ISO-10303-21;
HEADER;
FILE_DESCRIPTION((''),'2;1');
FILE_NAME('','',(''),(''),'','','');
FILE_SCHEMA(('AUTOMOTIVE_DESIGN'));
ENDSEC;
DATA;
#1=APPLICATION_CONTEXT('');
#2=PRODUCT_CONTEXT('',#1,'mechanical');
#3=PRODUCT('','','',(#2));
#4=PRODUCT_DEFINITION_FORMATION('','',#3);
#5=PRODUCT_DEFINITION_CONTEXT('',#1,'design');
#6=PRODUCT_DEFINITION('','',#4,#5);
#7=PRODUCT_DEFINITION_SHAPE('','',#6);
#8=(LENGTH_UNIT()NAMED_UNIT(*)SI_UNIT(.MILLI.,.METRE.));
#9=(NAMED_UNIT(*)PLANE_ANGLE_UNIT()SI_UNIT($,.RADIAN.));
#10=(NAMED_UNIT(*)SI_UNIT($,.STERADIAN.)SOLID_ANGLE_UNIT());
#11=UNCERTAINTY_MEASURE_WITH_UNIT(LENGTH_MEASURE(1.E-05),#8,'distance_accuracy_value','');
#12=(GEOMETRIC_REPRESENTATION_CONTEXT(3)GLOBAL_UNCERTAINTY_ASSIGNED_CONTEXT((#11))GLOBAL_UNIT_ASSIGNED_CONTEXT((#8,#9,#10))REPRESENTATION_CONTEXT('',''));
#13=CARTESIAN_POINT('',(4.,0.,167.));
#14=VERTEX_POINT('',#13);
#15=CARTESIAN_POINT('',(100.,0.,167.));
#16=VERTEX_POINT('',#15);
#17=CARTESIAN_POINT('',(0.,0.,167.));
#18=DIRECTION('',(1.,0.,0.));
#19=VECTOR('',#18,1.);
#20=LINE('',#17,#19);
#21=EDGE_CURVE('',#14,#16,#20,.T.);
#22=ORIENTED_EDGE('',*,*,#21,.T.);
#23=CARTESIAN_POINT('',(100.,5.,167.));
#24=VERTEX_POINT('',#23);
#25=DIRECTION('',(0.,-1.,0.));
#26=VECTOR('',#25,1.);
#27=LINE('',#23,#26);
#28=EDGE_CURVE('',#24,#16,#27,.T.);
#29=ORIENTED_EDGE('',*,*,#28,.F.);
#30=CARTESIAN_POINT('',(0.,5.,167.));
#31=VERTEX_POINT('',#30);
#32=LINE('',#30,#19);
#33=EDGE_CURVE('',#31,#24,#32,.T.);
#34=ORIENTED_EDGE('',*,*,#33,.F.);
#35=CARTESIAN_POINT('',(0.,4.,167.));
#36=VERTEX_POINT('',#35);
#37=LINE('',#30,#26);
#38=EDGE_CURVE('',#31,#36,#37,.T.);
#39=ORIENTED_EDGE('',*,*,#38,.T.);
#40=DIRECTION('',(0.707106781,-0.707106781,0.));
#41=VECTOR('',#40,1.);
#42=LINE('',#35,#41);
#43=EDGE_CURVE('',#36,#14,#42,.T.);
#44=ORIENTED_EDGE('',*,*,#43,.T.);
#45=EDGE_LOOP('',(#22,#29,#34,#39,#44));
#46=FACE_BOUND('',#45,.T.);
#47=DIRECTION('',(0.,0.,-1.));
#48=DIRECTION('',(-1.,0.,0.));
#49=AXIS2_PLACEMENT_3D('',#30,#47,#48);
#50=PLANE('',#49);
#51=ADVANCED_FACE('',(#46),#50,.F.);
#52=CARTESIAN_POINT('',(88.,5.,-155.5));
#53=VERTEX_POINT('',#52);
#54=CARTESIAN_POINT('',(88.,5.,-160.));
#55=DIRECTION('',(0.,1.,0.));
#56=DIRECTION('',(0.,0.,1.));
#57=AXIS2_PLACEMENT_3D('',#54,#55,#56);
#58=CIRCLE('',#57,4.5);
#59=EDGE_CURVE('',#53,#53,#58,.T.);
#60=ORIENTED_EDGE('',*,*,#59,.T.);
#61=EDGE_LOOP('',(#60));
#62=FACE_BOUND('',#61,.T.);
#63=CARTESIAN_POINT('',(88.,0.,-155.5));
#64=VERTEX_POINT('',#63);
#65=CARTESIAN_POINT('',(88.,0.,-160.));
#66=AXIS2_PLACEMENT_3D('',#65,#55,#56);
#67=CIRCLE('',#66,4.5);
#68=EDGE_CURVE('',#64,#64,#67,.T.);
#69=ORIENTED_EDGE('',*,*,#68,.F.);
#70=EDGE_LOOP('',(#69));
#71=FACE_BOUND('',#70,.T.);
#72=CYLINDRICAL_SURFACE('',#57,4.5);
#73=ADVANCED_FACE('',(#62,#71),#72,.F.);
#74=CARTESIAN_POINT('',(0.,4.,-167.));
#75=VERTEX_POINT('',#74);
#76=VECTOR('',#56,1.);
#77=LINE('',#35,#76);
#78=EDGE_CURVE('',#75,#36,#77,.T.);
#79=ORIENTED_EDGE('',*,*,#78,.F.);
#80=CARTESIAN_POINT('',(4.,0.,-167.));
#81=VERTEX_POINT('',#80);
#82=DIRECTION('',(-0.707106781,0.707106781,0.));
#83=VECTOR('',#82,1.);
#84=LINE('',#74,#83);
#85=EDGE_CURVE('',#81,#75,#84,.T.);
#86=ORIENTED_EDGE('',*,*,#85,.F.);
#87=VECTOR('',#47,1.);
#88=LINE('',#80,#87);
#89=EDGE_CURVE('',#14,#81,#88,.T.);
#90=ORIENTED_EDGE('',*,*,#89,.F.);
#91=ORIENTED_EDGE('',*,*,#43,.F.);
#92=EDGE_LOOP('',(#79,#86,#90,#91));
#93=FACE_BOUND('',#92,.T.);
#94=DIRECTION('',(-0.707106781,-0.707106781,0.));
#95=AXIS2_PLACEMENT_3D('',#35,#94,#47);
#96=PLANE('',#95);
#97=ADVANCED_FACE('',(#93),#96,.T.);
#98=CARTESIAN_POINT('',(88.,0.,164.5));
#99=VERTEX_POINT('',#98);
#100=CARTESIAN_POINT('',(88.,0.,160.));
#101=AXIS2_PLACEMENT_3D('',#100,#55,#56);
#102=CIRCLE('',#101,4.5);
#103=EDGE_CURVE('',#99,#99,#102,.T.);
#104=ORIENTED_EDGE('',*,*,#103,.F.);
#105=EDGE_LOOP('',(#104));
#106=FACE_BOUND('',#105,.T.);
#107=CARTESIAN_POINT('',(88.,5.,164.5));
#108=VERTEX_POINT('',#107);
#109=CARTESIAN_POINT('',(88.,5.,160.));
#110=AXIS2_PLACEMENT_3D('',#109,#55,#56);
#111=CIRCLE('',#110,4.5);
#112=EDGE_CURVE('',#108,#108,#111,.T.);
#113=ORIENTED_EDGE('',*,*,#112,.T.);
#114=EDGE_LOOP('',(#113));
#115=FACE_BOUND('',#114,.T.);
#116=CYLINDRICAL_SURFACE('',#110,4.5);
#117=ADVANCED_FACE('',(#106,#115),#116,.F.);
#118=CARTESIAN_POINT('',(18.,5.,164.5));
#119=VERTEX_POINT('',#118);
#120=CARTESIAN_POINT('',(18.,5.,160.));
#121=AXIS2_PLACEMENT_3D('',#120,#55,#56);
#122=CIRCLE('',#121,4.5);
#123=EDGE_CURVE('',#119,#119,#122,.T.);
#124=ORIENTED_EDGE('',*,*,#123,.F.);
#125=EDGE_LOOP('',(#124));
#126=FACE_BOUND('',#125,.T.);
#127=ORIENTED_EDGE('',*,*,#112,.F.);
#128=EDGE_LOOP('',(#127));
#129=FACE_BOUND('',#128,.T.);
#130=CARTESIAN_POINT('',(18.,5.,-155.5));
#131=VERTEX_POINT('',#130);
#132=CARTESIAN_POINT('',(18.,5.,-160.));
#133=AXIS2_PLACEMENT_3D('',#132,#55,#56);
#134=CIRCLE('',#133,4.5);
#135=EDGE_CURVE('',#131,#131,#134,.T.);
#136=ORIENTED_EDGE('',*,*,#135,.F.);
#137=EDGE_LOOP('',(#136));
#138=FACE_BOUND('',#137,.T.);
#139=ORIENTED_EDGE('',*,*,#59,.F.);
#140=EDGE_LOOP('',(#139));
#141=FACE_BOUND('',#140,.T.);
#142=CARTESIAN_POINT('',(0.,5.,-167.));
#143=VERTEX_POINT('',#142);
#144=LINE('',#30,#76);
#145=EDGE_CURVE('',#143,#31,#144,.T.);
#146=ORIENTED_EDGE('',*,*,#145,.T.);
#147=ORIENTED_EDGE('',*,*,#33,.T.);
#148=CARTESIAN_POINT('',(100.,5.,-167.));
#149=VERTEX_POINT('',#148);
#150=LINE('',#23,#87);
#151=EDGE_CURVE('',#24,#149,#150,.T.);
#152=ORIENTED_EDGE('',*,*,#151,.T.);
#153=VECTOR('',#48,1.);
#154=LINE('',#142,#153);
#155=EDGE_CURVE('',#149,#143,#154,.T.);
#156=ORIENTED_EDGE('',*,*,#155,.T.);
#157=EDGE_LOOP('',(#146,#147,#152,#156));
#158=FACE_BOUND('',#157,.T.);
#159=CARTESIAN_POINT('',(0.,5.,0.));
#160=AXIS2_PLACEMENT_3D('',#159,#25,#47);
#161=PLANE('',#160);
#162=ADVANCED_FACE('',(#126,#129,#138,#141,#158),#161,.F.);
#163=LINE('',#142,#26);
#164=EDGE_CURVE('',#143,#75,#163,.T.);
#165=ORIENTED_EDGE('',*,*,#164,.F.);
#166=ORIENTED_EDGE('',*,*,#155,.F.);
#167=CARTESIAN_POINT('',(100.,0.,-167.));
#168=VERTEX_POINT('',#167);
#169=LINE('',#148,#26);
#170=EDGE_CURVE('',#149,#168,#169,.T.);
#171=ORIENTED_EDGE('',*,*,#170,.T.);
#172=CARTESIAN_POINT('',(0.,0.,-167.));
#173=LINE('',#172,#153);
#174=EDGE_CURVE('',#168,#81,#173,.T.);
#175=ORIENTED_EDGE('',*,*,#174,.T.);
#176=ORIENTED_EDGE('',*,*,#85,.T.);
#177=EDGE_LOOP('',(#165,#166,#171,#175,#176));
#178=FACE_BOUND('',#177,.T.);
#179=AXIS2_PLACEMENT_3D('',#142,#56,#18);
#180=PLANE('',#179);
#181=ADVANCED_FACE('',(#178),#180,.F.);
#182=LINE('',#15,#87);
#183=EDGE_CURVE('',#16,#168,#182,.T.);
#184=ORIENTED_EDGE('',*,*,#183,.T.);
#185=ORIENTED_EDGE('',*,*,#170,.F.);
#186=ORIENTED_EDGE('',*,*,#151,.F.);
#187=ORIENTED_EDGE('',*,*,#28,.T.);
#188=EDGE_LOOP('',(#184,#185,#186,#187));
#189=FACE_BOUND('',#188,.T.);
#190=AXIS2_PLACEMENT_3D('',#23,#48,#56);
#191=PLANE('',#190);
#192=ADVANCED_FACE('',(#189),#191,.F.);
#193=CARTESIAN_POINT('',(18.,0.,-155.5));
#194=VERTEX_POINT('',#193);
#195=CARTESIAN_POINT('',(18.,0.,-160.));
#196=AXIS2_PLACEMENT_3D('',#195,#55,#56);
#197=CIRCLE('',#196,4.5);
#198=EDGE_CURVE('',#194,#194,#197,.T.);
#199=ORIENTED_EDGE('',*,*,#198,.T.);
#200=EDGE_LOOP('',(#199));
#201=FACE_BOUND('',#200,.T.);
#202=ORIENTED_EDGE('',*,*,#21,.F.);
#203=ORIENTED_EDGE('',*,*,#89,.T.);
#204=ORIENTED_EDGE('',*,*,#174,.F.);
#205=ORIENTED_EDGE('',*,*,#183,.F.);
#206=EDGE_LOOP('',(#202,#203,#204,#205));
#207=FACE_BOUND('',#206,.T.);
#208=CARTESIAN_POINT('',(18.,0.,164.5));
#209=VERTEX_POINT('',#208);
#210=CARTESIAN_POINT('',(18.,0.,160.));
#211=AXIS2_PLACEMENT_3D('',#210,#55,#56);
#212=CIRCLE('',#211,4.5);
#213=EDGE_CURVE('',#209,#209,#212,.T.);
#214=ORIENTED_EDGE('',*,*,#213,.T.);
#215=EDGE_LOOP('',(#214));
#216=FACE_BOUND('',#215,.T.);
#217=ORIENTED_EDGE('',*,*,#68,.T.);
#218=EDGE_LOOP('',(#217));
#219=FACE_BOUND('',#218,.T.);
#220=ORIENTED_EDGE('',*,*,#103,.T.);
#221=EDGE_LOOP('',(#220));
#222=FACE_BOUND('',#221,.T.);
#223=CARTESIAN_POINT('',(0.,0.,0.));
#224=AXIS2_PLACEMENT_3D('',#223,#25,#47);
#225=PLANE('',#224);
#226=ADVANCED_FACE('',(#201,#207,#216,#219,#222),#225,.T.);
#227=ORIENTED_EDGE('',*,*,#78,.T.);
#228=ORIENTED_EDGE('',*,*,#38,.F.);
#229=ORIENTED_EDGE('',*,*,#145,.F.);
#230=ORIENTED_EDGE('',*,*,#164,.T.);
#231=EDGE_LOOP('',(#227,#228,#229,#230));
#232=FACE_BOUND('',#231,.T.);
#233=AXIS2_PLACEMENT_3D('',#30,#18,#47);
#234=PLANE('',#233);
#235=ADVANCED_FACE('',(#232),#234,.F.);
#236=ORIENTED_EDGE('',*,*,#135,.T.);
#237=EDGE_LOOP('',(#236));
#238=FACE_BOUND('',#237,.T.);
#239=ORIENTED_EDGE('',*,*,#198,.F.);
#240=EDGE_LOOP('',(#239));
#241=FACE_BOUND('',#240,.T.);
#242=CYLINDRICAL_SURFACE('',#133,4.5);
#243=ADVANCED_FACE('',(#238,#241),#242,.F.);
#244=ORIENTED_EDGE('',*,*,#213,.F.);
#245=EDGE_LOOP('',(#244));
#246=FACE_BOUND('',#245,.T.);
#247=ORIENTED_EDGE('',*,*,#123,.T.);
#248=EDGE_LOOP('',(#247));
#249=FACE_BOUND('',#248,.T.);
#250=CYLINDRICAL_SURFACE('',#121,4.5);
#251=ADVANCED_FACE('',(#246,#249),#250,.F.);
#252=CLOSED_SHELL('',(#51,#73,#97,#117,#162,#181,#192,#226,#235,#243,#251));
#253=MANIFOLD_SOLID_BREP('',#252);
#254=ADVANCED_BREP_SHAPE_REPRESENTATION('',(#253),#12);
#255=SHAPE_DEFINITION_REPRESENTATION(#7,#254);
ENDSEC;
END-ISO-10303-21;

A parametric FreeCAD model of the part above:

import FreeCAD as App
import Part
import Sketcher
from FreeCAD import Vector
Q = App.Units.Quantity


def edges_at(feature, points):
    """Names of the edges that pass closest to the given points."""
    edges = feature.Shape.Edges
    near = lambda p: min(range(len(edges)), key=lambda i: edges[i].distToShape(Part.Vertex(*p))[0])
    return sorted({f"Edge{near(p) + 1}" for p in points})

doc = App.newDocument("Part")
params = doc.addObject("Spreadsheet::Sheet", "Params")
for row, (alias, value) in enumerate([
    ("sketch1_width", "100 mm"),
    ("sketch1_height", "334 mm"),
    ("pad1_length", "5 mm"),
    ("chamfer_size", "4 mm"),
    ("sketch2_diameter", "9 mm"),
    ("hole_diameter", "9 mm"),
], start=1):
    params.set(f"A{row}", alias)
    params.set(f"B{row}", "=" + value)
    params.setAlias(f"B{row}", alias)

body = doc.addObject("PartDesign::Body", "Body")

# Sketch on XZ plane
sketch1 = body.newObject("Sketcher::SketchObject", "Sketch")
sketch1.AttachmentSupport = (doc.getObject("XZ_Plane"), [""])
sketch1.MapMode = "FlatFace"
sketch1.addGeometry([
    Part.LineSegment(Vector(0, -167, 0), Vector(0, 167, 0)),
    Part.LineSegment(Vector(0, 167, 0), Vector(100, 167, 0)),
    Part.LineSegment(Vector(100, 167, 0), Vector(100, -167, 0)),
    Part.LineSegment(Vector(100, -167, 0), Vector(0, -167, 0)),
], False)
sketch1.addConstraint([
    Sketcher.Constraint("Coincident", 0, 2, 1, 1),
    Sketcher.Constraint("Coincident", 1, 2, 2, 1),
    Sketcher.Constraint("Coincident", 2, 2, 3, 1),
    Sketcher.Constraint("Coincident", 3, 2, 0, 1),
    Sketcher.Constraint("Vertical", 0),
    Sketcher.Constraint("Horizontal", 1),
    Sketcher.Constraint("Vertical", 2),
    Sketcher.Constraint("Horizontal", 3),
    Sketcher.Constraint("Symmetric", 0, 2, 3, 2, -1, 1),
    Sketcher.Constraint("DistanceX", 1, 1, 1, 2, Q("100 mm")),
    Sketcher.Constraint("DistanceY", 0, 1, 0, 2, Q("334 mm")),
])
sketch1.setExpression("Constraints[9]", "Params.sketch1_width")
sketch1.setExpression("Constraints[10]", "Params.sketch1_height")
pad1 = body.newObject("PartDesign::Pad", "Pad")
pad1.Profile = sketch1
pad1.setExpression("Length", "Params.pad1_length")
pad1.Reversed = True
doc.recompute()

chamfer = body.newObject("PartDesign::Chamfer", "Chamfer")
chamfer.Base = (pad1, edges_at(pad1, [(0, 0, 0)]))
chamfer.setExpression("Size", "Params.chamfer_size")

# Sketch on XZ plane
sketch2 = body.newObject("Sketcher::SketchObject", "Sketch001")
sketch2.AttachmentSupport = (doc.getObject("XZ_Plane"), [""])
sketch2.MapMode = "FlatFace"
sketch2.AttachmentOffset = App.Placement(Vector(0, 0, -5), App.Rotation())
sketch2.addGeometry([
    Part.Circle(Vector(18, 160, 0), Vector(0, 0, 1), 4.5),
    Part.Circle(Vector(18, -160, 0), Vector(0, 0, 1), 4.5),
    Part.Circle(Vector(88, 160, 0), Vector(0, 0, 1), 4.5),
    Part.Circle(Vector(88, -160, 0), Vector(0, 0, 1), 4.5),
], False)
sketch2.addConstraint([
    Sketcher.Constraint("Equal", 0, 1),
    Sketcher.Constraint("Equal", 1, 2),
    Sketcher.Constraint("Equal", 2, 3),
    Sketcher.Constraint("Symmetric", 0, 3, 1, 3, -1),
    Sketcher.Constraint("Symmetric", 2, 3, 3, 3, -1),
    Sketcher.Constraint("Horizontal", 0, 3, 2, 3),
    Sketcher.Constraint("Diameter", 0, Q("9 mm")),
    Sketcher.Constraint("DistanceX", -1, 1, 0, 3, Q("18 mm")),
    Sketcher.Constraint("DistanceY", -1, 1, 0, 3, Q("160 mm")),
    Sketcher.Constraint("DistanceX", -1, 1, 2, 3, Q("88 mm")),
])
sketch2.setExpression("Constraints[6]", "Params.sketch2_diameter")
doc.recompute()
hole = body.newObject("PartDesign::Hole", "Hole")
hole.Profile = sketch2
hole.ThreadType = "None"
hole.setExpression("Diameter", "Params.hole_diameter")
hole.DepthType = "ThroughAll"
hole.Reversed = True

doc.recompute()
